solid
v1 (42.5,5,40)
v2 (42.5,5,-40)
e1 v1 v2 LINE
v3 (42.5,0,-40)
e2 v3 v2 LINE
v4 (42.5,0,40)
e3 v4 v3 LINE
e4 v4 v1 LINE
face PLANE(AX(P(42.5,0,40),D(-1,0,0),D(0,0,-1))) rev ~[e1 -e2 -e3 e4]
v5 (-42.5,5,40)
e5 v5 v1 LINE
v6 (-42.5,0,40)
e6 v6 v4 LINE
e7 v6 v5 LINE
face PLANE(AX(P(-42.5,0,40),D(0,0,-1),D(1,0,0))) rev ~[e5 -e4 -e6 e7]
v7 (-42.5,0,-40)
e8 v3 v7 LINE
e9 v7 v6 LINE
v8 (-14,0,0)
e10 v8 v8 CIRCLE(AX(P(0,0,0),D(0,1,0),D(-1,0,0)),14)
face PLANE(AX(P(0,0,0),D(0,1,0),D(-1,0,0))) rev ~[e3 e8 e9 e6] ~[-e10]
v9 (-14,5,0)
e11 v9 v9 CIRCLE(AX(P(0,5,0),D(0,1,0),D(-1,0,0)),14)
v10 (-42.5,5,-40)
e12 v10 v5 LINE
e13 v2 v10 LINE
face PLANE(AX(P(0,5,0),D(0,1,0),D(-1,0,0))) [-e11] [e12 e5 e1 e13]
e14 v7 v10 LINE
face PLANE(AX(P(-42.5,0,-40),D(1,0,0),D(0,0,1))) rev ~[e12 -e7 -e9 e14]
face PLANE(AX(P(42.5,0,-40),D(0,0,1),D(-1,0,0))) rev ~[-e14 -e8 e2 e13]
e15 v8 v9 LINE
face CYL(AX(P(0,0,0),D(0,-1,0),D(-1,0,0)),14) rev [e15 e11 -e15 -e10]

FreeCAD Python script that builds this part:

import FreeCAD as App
import Part
import Sketcher

V = App.Vector


def add_polygon(sketch, points):
    """Adds a closed chain of lines whose ends are joined by coincident constraints."""
    first, n = sketch.GeometryCount, len(points)
    for a, b in zip(points, points[1:] + points[:1]):
        sketch.addGeometry(Part.LineSegment(App.Vector(*a, 0), App.Vector(*b, 0)), False)
    for i in range(n):
        sketch.addConstraint(Sketcher.Constraint("Coincident", first + i, 2, first + (i + 1) % n, 1))

doc = App.newDocument("Part")
body = doc.addObject("PartDesign::Body", "Body")

sketch1 = body.newObject("Sketcher::SketchObject", "Sketch")
sketch1.AttachmentSupport = (doc.getObject("XZ_Plane"), [""])
sketch1.MapMode = "FlatFace"
add_polygon(sketch1, [(42.5, 40), (42.5, -40), (-42.5, -40), (-42.5, 40)])
sketch1.addGeometry(Part.Circle(V(0, 0, 0), V(0, 0, 1), 14), False)
sketch1.addConstraint(Sketcher.Constraint("Vertical", 0))
sketch1.addConstraint(Sketcher.Constraint("Horizontal", 1))
sketch1.addConstraint(Sketcher.Constraint("Vertical", 2))
sketch1.addConstraint(Sketcher.Constraint("Horizontal", 3))
sketch1.addConstraint(Sketcher.Constraint("Coincident", 4, 3, -1, 1))
sketch1.addConstraint(Sketcher.Constraint("Symmetric", 0, 2, 2, 2, -1, 1))
sketch1.addConstraint(Sketcher.Constraint("Diameter", 4, 28.0))
sketch1.addConstraint(Sketcher.Constraint("DistanceX", 1, 2, 1, 1, 85.0))
sketch1.addConstraint(Sketcher.Constraint("DistanceY", 0, 2, 0, 1, 80.0))
pad1 = body.newObject("PartDesign::Pad", "Pad")
pad1.Profile = sketch1
pad1.Length = 5
pad1.Reversed = True

doc.recompute()
